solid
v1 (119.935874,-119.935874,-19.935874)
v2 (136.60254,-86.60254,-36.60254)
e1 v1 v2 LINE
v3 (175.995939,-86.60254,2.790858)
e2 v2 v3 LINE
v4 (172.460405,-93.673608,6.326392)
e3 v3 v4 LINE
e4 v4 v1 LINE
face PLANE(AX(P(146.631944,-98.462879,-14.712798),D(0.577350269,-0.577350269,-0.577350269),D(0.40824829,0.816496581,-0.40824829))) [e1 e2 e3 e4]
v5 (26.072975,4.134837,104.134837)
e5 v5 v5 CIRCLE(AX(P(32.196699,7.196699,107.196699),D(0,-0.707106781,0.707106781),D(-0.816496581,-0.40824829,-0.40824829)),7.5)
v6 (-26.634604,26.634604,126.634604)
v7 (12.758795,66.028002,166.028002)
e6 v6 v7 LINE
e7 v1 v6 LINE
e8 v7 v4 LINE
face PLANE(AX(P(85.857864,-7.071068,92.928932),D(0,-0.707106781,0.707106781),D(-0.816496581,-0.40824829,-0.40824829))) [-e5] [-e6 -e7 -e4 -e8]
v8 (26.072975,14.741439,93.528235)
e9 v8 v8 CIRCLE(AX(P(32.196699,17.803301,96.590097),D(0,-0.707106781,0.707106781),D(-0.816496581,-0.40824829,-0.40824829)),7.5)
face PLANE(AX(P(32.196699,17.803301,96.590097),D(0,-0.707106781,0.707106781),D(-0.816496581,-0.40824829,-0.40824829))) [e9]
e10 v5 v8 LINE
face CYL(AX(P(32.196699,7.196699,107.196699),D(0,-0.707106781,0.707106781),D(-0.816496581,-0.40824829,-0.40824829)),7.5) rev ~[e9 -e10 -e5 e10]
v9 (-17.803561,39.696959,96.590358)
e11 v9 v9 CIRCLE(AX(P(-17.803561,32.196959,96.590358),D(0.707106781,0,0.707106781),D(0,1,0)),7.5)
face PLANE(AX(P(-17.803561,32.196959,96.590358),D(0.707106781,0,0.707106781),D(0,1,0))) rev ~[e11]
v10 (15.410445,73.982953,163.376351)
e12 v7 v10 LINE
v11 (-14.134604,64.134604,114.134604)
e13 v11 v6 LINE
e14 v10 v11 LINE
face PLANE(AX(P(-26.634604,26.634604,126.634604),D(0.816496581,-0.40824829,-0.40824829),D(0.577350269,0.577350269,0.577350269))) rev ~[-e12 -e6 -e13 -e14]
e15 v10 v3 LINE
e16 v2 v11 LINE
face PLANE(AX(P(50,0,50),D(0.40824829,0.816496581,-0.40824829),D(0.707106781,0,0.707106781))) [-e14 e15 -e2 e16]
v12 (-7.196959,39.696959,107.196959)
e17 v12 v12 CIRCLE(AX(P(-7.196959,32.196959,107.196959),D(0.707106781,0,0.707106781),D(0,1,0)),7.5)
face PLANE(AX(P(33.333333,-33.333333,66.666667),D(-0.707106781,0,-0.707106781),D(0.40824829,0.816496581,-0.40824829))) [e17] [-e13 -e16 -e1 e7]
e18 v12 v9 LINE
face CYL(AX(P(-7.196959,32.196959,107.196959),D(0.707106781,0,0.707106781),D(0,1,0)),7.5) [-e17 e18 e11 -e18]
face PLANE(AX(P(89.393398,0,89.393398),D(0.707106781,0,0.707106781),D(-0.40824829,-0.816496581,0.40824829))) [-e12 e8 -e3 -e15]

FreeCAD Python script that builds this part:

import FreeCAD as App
import Part
import Sketcher
Q = App.Units.Quantity

doc = App.newDocument("Part")
body = doc.addObject("PartDesign::Body", "Body")

# Sketch on an angled plane
sketch1 = body.newObject("Sketcher::SketchObject", "Sketch")
sketch1.Placement = App.Placement(App.Vector(0, -50, 50), App.Rotation(App.Vector(0.816496581, -0.40824829, -0.40824829), App.Vector(0, -0.707106781, 0.707106781), App.Vector(-0.577350269, -0.577350269, -0.577350269), "ZXY"))
sketch1.addGeometry([
    Part.LineSegment(App.Vector(0, 0, 0), App.Vector(0, 56, 0)),
    Part.LineSegment(App.Vector(0, 56, 0), App.Vector(-9, 56, 0)),
    Part.LineSegment(App.Vector(-9, 56, 0), App.Vector(-41, 0, 0)),
    Part.LineSegment(App.Vector(-41, 0, 0), App.Vector(0, 0, 0)),
], False)
sketch1.addConstraint([
    Sketcher.Constraint("Coincident", 0, 2, 1, 1),
    Sketcher.Constraint("Coincident", 1, 2, 2, 1),
    Sketcher.Constraint("Coincident", 2, 2, 3, 1),
    Sketcher.Constraint("Coincident", 3, 2, 0, 1),
    Sketcher.Constraint("Vertical", 0),
    Sketcher.Constraint("Horizontal", 1),
    Sketcher.Constraint("Horizontal", 3),
    Sketcher.Constraint("Coincident", 3, 2, -1, 1),
    Sketcher.Constraint("Angle", 2, Q("-120 deg")),
    Sketcher.Constraint("DistanceX", 3, 1, 3, 2, Q("40.824829 mm")),
    Sketcher.Constraint("DistanceY", 0, 1, 0, 2, Q("55.710678 mm")),
])
pad1 = body.newObject("PartDesign::Pad", "Pad")
pad1.Profile = sketch1
pad1.Length = 300
pad1.Midplane = True

# Sketch on an angled plane
sketch2 = body.newObject("Sketcher::SketchObject", "Sketch001")
sketch2.Placement = App.Placement(App.Vector(0, -50, 50), App.Rotation(App.Vector(1, 0, 0), App.Vector(0, 0.707106781, 0.707106781), App.Vector(0, -0.707106781, 0.707106781), "ZXY"))
sketch2.addGeometry(Part.Circle(App.Vector(32, 81, 0), App.Vector(0, 0, 1), 8), False)
sketch2.addConstraint([
    Sketcher.Constraint("Diameter", 0, Q("15 mm")),
    Sketcher.Constraint("DistanceX", -1, 1, 0, 3, Q("32.196959 mm")),
    Sketcher.Constraint("DistanceY", -1, 1, 0, 3, Q("80.888716 mm")),
])
pad2 = body.newObject("PartDesign::Pad", "Pad001")
pad2.Profile = sketch2
pad2.Length = 15
pad2.Reversed = True

# Sketch on an angled plane
sketch3 = body.newObject("Sketcher::SketchObject", "Sketch002")
sketch3.Placement = App.Placement(App.Vector(-25, -50, 75), App.Rotation(App.Vector(-0.40824829, 0.816496581, -0.40824829), App.Vector(-0.577350269, -0.577350268, -0.577350269), App.Vector(-0.707106781, 0, 0.707106781), "ZXY"))
sketch3.addGeometry(Part.Circle(App.Vector(-12, -47, 0), App.Vector(0, 0, 1), 8), False)
sketch3.addConstraint([
    Sketcher.Constraint("Diameter", 0, Q("15 mm")),
    Sketcher.Constraint("DistanceX", 0, 3, -1, 1, Q("11.75216 mm")),
    Sketcher.Constraint("DistanceY", 0, 3, -1, 1, Q("47.456286 mm")),
])
pocket1 = body.newObject("PartDesign::Pocket", "Pocket")
pocket1.Profile = sketch3
pocket1.Length = 15

# Sketch on an angled plane
sketch4 = body.newObject("Sketcher::SketchObject", "Sketch003")
sketch4.Placement = App.Placement(App.Vector(-25, -50, 75), App.Rotation(App.Vector(-0.40824829, 0.816496581, -0.40824829), App.Vector(-0.577350269, -0.577350268, -0.577350269), App.Vector(-0.707106781, 0, 0.707106781), "ZXY"))
sketch4.addGeometry([
    Part.LineSegment(App.Vector(20, -104, 0), App.Vector(-48, -128, 0)),
    Part.LineSegment(App.Vector(-48, -128, 0), App.Vector(-48, -150, 0)),
    Part.LineSegment(App.Vector(-48, -150, 0), App.Vector(20, -150, 0)),
    Part.LineSegment(App.Vector(20, -150, 0), App.Vector(20, -104, 0)),
], False)
sketch4.addConstraint([
    Sketcher.Constraint("Coincident", 0, 2, 1, 1),
    Sketcher.Constraint("Coincident", 1, 2, 2, 1),
    Sketcher.Constraint("Coincident", 2, 2, 3, 1),
    Sketcher.Constraint("Coincident", 3, 2, 0, 1),
    Sketcher.Constraint("Vertical", 1),
    Sketcher.Constraint("Horizontal", 2),
    Sketcher.Constraint("Vertical", 3),
    Sketcher.Constraint("DistanceY", 1, 2, -1, 1, Q("150 mm")),
    Sketcher.Constraint("Distance", 0, Q("72.824161 mm")),
    Sketcher.Constraint("DistanceX", 2, 1, 2, 2, Q("68.659277 mm")),
    Sketcher.Constraint("DistanceY", 1, 2, 1, 1, Q("21.857766 mm")),
    Sketcher.Constraint("DistanceX", 0, 2, -1, 1, Q("48.246862 mm")),
])
pocket2 = body.newObject("PartDesign::Pocket", "Pocket001")
pocket2.Profile = sketch4
pocket2.Length = 50
body2 = doc.addObject("PartDesign::Body", "Body001")
doc.recompute()

body.Placement = App.Placement(App.Vector(0, 0, 0), App.Rotation(App.Vector(0, 0, 1), 90))
boolean = body2.newObject("PartDesign::Boolean", "Boolean")
boolean.Type = "Fuse"
boolean.addObjects([body])

doc.recompute()
